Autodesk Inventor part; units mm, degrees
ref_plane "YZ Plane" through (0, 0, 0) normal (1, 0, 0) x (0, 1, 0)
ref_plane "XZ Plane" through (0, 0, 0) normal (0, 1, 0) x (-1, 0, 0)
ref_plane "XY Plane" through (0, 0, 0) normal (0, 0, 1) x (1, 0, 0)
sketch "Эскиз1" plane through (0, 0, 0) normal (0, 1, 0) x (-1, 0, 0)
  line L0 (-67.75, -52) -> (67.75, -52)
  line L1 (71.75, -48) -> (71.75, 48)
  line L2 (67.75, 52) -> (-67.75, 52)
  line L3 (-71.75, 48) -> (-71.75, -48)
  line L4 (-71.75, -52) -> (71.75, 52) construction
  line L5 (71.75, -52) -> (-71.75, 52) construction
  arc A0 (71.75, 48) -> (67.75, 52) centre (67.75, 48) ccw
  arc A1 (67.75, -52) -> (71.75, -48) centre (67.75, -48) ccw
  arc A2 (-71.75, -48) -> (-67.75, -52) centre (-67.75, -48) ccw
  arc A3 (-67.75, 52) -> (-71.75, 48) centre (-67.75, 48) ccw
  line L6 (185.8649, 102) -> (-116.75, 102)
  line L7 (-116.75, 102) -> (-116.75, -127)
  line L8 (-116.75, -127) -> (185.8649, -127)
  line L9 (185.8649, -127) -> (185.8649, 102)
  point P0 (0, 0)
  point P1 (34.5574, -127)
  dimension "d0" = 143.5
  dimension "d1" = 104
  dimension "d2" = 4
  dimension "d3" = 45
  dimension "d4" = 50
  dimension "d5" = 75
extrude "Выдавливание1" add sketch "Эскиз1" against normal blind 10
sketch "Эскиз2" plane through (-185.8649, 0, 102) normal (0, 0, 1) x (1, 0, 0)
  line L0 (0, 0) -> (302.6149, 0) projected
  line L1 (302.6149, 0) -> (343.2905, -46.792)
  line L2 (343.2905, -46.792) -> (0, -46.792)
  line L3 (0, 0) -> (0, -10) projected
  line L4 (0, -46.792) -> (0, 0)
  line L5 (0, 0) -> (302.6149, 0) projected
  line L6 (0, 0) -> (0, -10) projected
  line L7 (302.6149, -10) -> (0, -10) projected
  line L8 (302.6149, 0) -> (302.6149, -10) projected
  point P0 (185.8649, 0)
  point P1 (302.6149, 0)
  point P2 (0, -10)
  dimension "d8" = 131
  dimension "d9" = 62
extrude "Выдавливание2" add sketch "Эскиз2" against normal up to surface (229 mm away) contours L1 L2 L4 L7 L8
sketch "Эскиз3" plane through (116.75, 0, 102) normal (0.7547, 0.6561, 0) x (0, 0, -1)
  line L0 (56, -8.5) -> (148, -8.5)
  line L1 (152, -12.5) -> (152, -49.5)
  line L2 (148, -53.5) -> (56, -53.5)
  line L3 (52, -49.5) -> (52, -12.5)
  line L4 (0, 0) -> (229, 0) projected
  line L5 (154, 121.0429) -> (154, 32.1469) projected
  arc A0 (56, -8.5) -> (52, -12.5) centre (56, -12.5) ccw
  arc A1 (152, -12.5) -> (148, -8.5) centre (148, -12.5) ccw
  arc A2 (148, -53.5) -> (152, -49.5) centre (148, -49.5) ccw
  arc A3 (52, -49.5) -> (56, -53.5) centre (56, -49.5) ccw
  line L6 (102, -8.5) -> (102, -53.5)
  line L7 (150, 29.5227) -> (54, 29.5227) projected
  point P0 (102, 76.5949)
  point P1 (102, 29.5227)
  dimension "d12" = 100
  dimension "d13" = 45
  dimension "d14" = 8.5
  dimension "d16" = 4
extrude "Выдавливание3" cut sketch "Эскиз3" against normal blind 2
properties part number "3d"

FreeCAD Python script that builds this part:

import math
import FreeCAD as App
import Part
import Sketcher
Q = App.Units.Quantity

doc = App.newDocument("Part")
body = doc.addObject("PartDesign::Body", "Body")

sketch1 = doc.addObject("Sketcher::SketchObject", "Sketch")
body.addObject(sketch1)
sketch1.AttachmentSupport = (doc.XZ_Plane, [""])
sketch1.MapMode = "FlatFace"
sketch1.addGeometry([
    Part.LineSegment(App.Vector(-185.9, -127, 0), App.Vector(-185.9, 102, 0)),
    Part.LineSegment(App.Vector(-185.9, 102, 0), App.Vector(116.8, 102, 0)),
    Part.LineSegment(App.Vector(116.8, 102, 0), App.Vector(116.8, -127, 0)),
    Part.LineSegment(App.Vector(116.8, -127, 0), App.Vector(-185.9, -127, 0)),
    Part.LineSegment(App.Vector(-67.8, -52, 0), App.Vector(67.8, -52, 0)),
    Part.ArcOfCircle(Part.Circle(App.Vector(67.8, -48, 0), App.Vector(0, 0, 1), 4), math.radians(-90), math.radians(0)),
    Part.LineSegment(App.Vector(71.8, -48, 0), App.Vector(71.8, 48, 0)),
    Part.ArcOfCircle(Part.Circle(App.Vector(67.8, 48, 0), App.Vector(0, 0, 1), 4), math.radians(0), math.radians(90)),
    Part.LineSegment(App.Vector(67.8, 52, 0), App.Vector(-67.8, 52, 0)),
    Part.ArcOfCircle(Part.Circle(App.Vector(-67.8, 48, 0), App.Vector(0, 0, 1), 4), math.radians(90), math.radians(180)),
    Part.LineSegment(App.Vector(-71.8, 48, 0), App.Vector(-71.8, -48, 0)),
    Part.ArcOfCircle(Part.Circle(App.Vector(-67.8, -48, 0), App.Vector(0, 0, 1), 4), math.radians(180), math.radians(270)),
], False)
sketch1.addConstraint([
    Sketcher.Constraint("Coincident", 0, 2, 1, 1),
    Sketcher.Constraint("Coincident", 1, 2, 2, 1),
    Sketcher.Constraint("Coincident", 2, 2, 3, 1),
    Sketcher.Constraint("Coincident", 3, 2, 0, 1),
    Sketcher.Constraint("Tangent", 4, 2, 5, 1),
    Sketcher.Constraint("Tangent", 5, 2, 6, 1),
    Sketcher.Constraint("Tangent", 6, 2, 7, 1),
    Sketcher.Constraint("Tangent", 7, 2, 8, 1),
    Sketcher.Constraint("Tangent", 8, 2, 9, 1),
    Sketcher.Constraint("Tangent", 9, 2, 10, 1),
    Sketcher.Constraint("Tangent", 10, 2, 11, 1),
    Sketcher.Constraint("Tangent", 11, 2, 4, 1),
    Sketcher.Constraint("Vertical", 0),
    Sketcher.Constraint("Horizontal", 1),
    Sketcher.Constraint("Vertical", 2),
    Sketcher.Constraint("Horizontal", 3),
    Sketcher.Constraint("Horizontal", 4),
    Sketcher.Constraint("Vertical", 6),
    Sketcher.Constraint("Horizontal", 8),
    Sketcher.Constraint("Vertical", 10),
    Sketcher.Constraint("Equal", 5, 7),
    Sketcher.Constraint("Equal", 7, 9),
    Sketcher.Constraint("Equal", 9, 11),
    Sketcher.Constraint("Symmetric", 5, 3, 9, 3, -1, 1),
    Sketcher.Constraint("Radius", 5, 4.0),
    Sketcher.Constraint("DistanceY", 2, 2, 4, 2, 75.0),
    Sketcher.Constraint("DistanceX", 5, 2, 2, 2, 45.0),
    Sketcher.Constraint("DistanceY", 7, 2, 1, 2, 50.0),
    Sketcher.Constraint("DistanceY", 11, 2, 8, 2, 104.0),
    Sketcher.Constraint("DistanceX", 4, 1, 4, 2, 135.5),
    Sketcher.Constraint("DistanceX", 1, 1, 1, 2, 302.615),
])
pad1 = doc.addObject("PartDesign::Pad", "Pad")
body.addObject(pad1)
pad1.Profile = sketch1
pad1.Length = 10

sketch2 = doc.addObject("Sketcher::SketchObject", "Sketch001")
body.addObject(sketch2)
sketch2.AttachmentSupport = (doc.XY_Plane, [""])
sketch2.MapMode = "FlatFace"
sketch2.AttachmentOffset = App.Placement(App.Vector(0, 0, 102), App.Rotation())
sketch2.addGeometry([
    Part.LineSegment(App.Vector(157, -47, 0), App.Vector(117, 0, 0)),
    Part.LineSegment(App.Vector(117, 0, 0), App.Vector(117, -10, 0)),
    Part.LineSegment(App.Vector(117, -10, 0), App.Vector(-186, -10, 0)),
    Part.LineSegment(App.Vector(-186, -10, 0), App.Vector(-186, -47, 0)),
    Part.LineSegment(App.Vector(-186, -47, 0), App.Vector(157, -47, 0)),
], False)
sketch2.addConstraint([
    Sketcher.Constraint("Coincident", 0, 2, 1, 1),
    Sketcher.Constraint("Coincident", 1, 2, 2, 1),
    Sketcher.Constraint("Coincident", 2, 2, 3, 1),
    Sketcher.Constraint("Coincident", 3, 2, 4, 1),
    Sketcher.Constraint("Coincident", 4, 2, 0, 1),
    Sketcher.Constraint("Vertical", 1),
    Sketcher.Constraint("Horizontal", 2),
    Sketcher.Constraint("Vertical", 3),
    Sketcher.Constraint("Horizontal", 4),
    Sketcher.Constraint("PointOnObject", 0, 2, -1),
    Sketcher.Constraint("Angle", 0, Q("131 deg")),
    Sketcher.Constraint("Distance", 0, 62.0),
    Sketcher.Constraint("DistanceY", 1, 2, 1, 1, 10.0),
    Sketcher.Constraint("DistanceX", 2, 2, 2, 1, 302.615),
    Sketcher.Constraint("DistanceX", -1, 1, 0, 2, 116.75),
])
pad2 = doc.addObject("PartDesign::Pad", "Pad001")
body.addObject(pad2)
pad2.Profile = sketch2
pad2.Length = 229
pad2.Reversed = True

sketch3 = doc.addObject("Sketcher::SketchObject", "Sketch002")
body.addObject(sketch3)
sketch3.Placement = App.Placement(App.Vector(116.75, 0, 102), App.Rotation(App.Vector(0, 0, -1), App.Vector(-0.656059029, 0.75470958, 0), App.Vector(0.75470958, 0.656059029, 0), "ZXY"))
sketch3.addGeometry([
    Part.ArcOfCircle(Part.Circle(App.Vector(56, -12.5, 0), App.Vector(0, 0, 1), 4), math.radians(90), math.radians(180)),
    Part.LineSegment(App.Vector(52, -12.5, 0), App.Vector(52, -49.5, 0)),
    Part.ArcOfCircle(Part.Circle(App.Vector(56, -49.5, 0), App.Vector(0, 0, 1), 4), math.radians(180), math.radians(270)),
    Part.LineSegment(App.Vector(56, -53.5, 0), App.Vector(148, -53.5, 0)),
    Part.ArcOfCircle(Part.Circle(App.Vector(148, -49.5, 0), App.Vector(0, 0, 1), 4), math.radians(-90), math.radians(0)),
    Part.LineSegment(App.Vector(152, -49.5, 0), App.Vector(152, -12.5, 0)),
    Part.ArcOfCircle(Part.Circle(App.Vector(148, -12.5, 0), App.Vector(0, 0, 1), 4), math.radians(0), math.radians(90)),
    Part.LineSegment(App.Vector(148, -8.5, 0), App.Vector(56, -8.5, 0)),
], False)
sketch3.addConstraint([
    Sketcher.Constraint("Tangent", 0, 2, 1, 1),
    Sketcher.Constraint("Tangent", 1, 2, 2, 1),
    Sketcher.Constraint("Tangent", 2, 2, 3, 1),
    Sketcher.Constraint("Tangent", 3, 2, 4, 1),
    Sketcher.Constraint("Tangent", 4, 2, 5, 1),
    Sketcher.Constraint("Tangent", 5, 2, 6, 1),
    Sketcher.Constraint("Tangent", 6, 2, 7, 1),
    Sketcher.Constraint("Tangent", 7, 2, 0, 1),
    Sketcher.Constraint("Vertical", 1),
    Sketcher.Constraint("Horizontal", 3),
    Sketcher.Constraint("Vertical", 5),
    Sketcher.Constraint("Horizontal", 7),
    Sketcher.Constraint("Equal", 0, 2),
    Sketcher.Constraint("Equal", 2, 4),
    Sketcher.Constraint("Equal", 4, 6),
    Sketcher.Constraint("Radius", 0, 4.0),
    Sketcher.Constraint("DistanceY", 3, 2, 6, 2, 45.0),
    Sketcher.Constraint("DistanceY", 6, 2, -1, 1, 8.5),
    Sketcher.Constraint("DistanceX", 3, 1, 3, 2, 92.0),
    Sketcher.Constraint("DistanceX", -1, 1, 0, 3, 56.0),
])
pocket1 = doc.addObject("PartDesign::Pocket", "Pocket")
body.addObject(pocket1)
pocket1.Profile = sketch3
pocket1.Length = 2

doc.recompute()
